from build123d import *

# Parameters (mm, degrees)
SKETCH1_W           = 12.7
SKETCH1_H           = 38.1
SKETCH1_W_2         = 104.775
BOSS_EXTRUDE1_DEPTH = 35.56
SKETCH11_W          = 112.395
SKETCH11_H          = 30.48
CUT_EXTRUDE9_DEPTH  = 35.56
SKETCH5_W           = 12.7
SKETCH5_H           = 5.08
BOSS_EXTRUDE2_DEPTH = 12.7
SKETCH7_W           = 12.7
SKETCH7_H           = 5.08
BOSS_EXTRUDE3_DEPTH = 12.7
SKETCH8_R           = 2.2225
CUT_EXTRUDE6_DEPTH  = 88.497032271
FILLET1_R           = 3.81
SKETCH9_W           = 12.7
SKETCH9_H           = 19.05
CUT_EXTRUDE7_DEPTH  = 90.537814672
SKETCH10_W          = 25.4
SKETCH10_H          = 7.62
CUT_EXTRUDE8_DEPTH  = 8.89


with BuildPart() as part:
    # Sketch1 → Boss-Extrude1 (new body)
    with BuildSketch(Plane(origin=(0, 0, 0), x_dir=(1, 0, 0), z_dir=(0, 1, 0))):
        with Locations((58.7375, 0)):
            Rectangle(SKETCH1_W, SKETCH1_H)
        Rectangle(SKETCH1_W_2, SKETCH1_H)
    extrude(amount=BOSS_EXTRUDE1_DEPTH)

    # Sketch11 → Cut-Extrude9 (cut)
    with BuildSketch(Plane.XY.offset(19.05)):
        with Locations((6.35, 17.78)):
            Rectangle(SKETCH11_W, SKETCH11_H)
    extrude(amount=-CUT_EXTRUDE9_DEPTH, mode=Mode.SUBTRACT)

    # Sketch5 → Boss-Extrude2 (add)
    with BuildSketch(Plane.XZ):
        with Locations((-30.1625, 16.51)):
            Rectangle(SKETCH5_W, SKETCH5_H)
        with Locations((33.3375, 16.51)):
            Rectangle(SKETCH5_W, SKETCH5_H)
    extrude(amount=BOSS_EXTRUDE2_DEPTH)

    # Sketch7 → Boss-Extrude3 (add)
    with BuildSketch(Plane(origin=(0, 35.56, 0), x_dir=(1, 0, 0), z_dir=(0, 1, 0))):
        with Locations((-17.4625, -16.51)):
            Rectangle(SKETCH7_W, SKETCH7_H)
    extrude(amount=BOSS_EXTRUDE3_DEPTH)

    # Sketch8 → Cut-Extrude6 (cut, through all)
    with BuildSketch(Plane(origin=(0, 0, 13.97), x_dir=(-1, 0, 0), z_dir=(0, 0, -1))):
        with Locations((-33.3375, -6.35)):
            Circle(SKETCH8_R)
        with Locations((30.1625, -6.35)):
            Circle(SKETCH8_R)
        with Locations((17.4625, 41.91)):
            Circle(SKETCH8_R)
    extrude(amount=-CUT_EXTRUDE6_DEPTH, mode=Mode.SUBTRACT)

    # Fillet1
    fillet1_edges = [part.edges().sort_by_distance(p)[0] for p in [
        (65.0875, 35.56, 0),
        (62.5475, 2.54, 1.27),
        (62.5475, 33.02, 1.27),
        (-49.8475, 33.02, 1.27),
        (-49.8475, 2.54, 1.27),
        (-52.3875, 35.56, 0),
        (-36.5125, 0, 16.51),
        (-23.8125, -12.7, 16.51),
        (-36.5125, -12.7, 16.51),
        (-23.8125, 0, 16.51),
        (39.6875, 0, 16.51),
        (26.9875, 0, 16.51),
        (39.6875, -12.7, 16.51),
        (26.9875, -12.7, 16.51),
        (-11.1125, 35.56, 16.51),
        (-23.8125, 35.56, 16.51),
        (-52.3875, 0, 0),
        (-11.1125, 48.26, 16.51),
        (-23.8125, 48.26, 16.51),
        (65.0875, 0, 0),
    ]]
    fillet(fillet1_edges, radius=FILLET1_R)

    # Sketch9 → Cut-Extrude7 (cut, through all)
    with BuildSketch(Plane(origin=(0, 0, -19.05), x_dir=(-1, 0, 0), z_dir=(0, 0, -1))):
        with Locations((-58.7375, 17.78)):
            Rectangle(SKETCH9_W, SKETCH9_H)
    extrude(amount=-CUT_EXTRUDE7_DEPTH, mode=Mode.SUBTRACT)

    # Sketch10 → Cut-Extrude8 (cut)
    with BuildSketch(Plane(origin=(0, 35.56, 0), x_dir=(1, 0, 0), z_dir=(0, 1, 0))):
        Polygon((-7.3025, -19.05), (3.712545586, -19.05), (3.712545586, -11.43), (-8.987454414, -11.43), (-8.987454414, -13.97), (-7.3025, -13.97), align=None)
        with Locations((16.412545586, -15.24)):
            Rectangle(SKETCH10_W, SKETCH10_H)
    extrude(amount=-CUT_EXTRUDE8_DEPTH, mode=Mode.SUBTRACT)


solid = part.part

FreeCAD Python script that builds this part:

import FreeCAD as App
import Part
import Sketcher
Q = App.Units.Quantity


def edges_at(feature, points):
    """Names of the edges that pass closest to the given points."""
    edges = feature.Shape.Edges
    near = lambda p: min(range(len(edges)), key=lambda i: edges[i].distToShape(Part.Vertex(*p))[0])
    return sorted({f"Edge{near(p) + 1}" for p in points})


def add_polygon(sketch, points):
    """Adds a closed chain of lines whose ends are joined by coincident constraints."""
    first, n = sketch.GeometryCount, len(points)
    for a, b in zip(points, points[1:] + points[:1]):
        sketch.addGeometry(Part.LineSegment(App.Vector(*a, 0), App.Vector(*b, 0)), False)
    for i in range(n):
        sketch.addConstraint(Sketcher.Constraint("Coincident", first + i, 2, first + (i + 1) % n, 1))

doc = App.newDocument("Part")
params = doc.addObject("Spreadsheet::Sheet", "Params")
for row, (alias, value) in enumerate([
    ("sketch1_height", "1.5 in"),
    ("sketch1_width", "4.625 in"),
    ("pad1_length", "1.4 in"),
    ("sketch2_height", "1.2 in"),
    ("sketch2_width", "4.425 in"),
    ("pocket1_length", "1.4 in"),
    ("sketch3_width", "0.5 in"),
    ("sketch3_height", "0.2 in"),
    ("pad2_length", "0.5 in"),
    ("sketch4_width", "0.5 in"),
    ("sketch4_height", "0.2 in"),
    ("pad3_length", "0.5 in"),
    ("sketch5_diameter", "0.175 in"),
    ("fillet_radius", "0.15 in"),
    ("sketch6_width", "0.5 in"),
    ("sketch6_height", "0.75 in"),
    ("sketch7_width", "1.5 in"),
    ("sketch7_height", "0.3 in"),
    ("sketch7_height2", "0.1 in"),
    ("pocket4_length", "0.35 in"),
], start=1):
    params.set(f"A{row}", alias)
    params.set(f"B{row}", "=" + value)
    params.setAlias(f"B{row}", alias)

body = doc.addObject("PartDesign::Body", "Body")

sketch1 = body.newObject("Sketcher::SketchObject", "Sketch")
sketch1.AttachmentSupport = (doc.getObject("XZ_Plane"), [""])
sketch1.MapMode = "FlatFace"
add_polygon(sketch1, [(65, 19), (65, -19), (-52, -19), (-52, 19)])
sketch1.addConstraint(Sketcher.Constraint("Vertical", 0))
sketch1.addConstraint(Sketcher.Constraint("Horizontal", 1))
sketch1.addConstraint(Sketcher.Constraint("Vertical", 2))
sketch1.addConstraint(Sketcher.Constraint("Horizontal", 3))
sketch1.addConstraint(Sketcher.Constraint("DistanceY", 0, 2, 0, 1, Q("1.5 in")))
sketch1.addConstraint(Sketcher.Constraint("DistanceX", 1, 2, 1, 1, Q("4.625 in")))
sketch1.addConstraint(Sketcher.Constraint("DistanceY", 0, 2, -1, 1, Q("0.75 in")))
sketch1.addConstraint(Sketcher.Constraint("DistanceX", -1, 1, 0, 2, Q("2.5625 in")))
sketch1.setExpression("Constraints[8]", "Params.sketch1_height")
sketch1.setExpression("Constraints[9]", "Params.sketch1_width")
pad1 = body.newObject("PartDesign::Pad", "Pad")
pad1.Profile = sketch1
pad1.setExpression("Length", "Params.pad1_length")
pad1.Reversed = True

sketch2 = body.newObject("Sketcher::SketchObject", "Sketch001")
sketch2.AttachmentSupport = (doc.getObject("XY_Plane"), [""])
sketch2.MapMode = "FlatFace"
sketch2.AttachmentOffset = App.Placement(App.Vector(0, 0, 0.75 * 25.4), App.Rotation())
add_polygon(sketch2, [(-50, 33), (-50, 3), (63, 3), (63, 33)])
sketch2.addConstraint(Sketcher.Constraint("Vertical", 0))
sketch2.addConstraint(Sketcher.Constraint("Horizontal", 1))
sketch2.addConstraint(Sketcher.Constraint("Vertical", 2))
sketch2.addConstraint(Sketcher.Constraint("Horizontal", 3))
sketch2.addConstraint(Sketcher.Constraint("DistanceY", 0, 2, 0, 1, Q("1.2 in")))
sketch2.addConstraint(Sketcher.Constraint("DistanceY", -1, 1, 0, 2, Q("0.1 in")))
sketch2.addConstraint(Sketcher.Constraint("DistanceX", 1, 1, 1, 2, Q("4.425 in")))
sketch2.addConstraint(Sketcher.Constraint("DistanceX", 0, 2, -1, 1, Q("1.9625 in")))
sketch2.setExpression("Constraints[8]", "Params.sketch2_height")
sketch2.setExpression("Constraints[10]", "Params.sketch2_width")
pocket1 = body.newObject("PartDesign::Pocket", "Pocket")
pocket1.Profile = sketch2
pocket1.setExpression("Length", "Params.pocket1_length")

sketch3 = body.newObject("Sketcher::SketchObject", "Sketch002")
sketch3.AttachmentSupport = (doc.getObject("XZ_Plane"), [""])
sketch3.MapMode = "FlatFace"
add_polygon(sketch3, [(-37, 19), (-37, 14), (-24, 14), (-24, 19)])
add_polygon(sketch3, [(27, 19), (27, 14), (40, 14), (40, 19)])
sketch3.addConstraint(Sketcher.Constraint("Vertical", 0))
sketch3.addConstraint(Sketcher.Constraint("Horizontal", 1))
sketch3.addConstraint(Sketcher.Constraint("Vertical", 2))
sketch3.addConstraint(Sketcher.Constraint("Horizontal", 3))
sketch3.addConstraint(Sketcher.Constraint("Vertical", 4))
sketch3.addConstraint(Sketcher.Constraint("Horizontal", 5))
sketch3.addConstraint(Sketcher.Constraint("Vertical", 6))
sketch3.addConstraint(Sketcher.Constraint("Horizontal", 7))
sketch3.addConstraint(Sketcher.Constraint("Horizontal", 1, 2, 4, 2))
sketch3.addConstraint(Sketcher.Constraint("Horizontal", 3, 2, 6, 2))
sketch3.addConstraint(Sketcher.Constraint("Equal", 3, 5))
sketch3.addConstraint(Sketcher.Constraint("DistanceX", 1, 1, 1, 2, Q("0.5 in")))
sketch3.addConstraint(Sketcher.Constraint("DistanceY", 0, 2, 0, 1, Q("0.2 in")))
sketch3.addConstraint(Sketcher.Constraint("DistanceX", 1, 2, 4, 2, Q("2 in")))
sketch3.addConstraint(Sketcher.Constraint("DistanceY", -1, 1, 0, 2, Q("0.55 in")))
sketch3.addConstraint(Sketcher.Constraint("DistanceX", 0, 2, -1, 1, Q("1.4375 in")))
sketch3.setExpression("Constraints[19]", "Params.sketch3_width")
sketch3.setExpression("Constraints[20]", "Params.sketch3_height")
pad2 = body.newObject("PartDesign::Pad", "Pad001")
pad2.Profile = sketch3
pad2.setExpression("Length", "Params.pad2_length")

sketch4 = body.newObject("Sketcher::SketchObject", "Sketch003")
sketch4.AttachmentSupport = (doc.getObject("XZ_Plane"), [""])
sketch4.MapMode = "FlatFace"
sketch4.AttachmentOffset = App.Placement(App.Vector(0, 0, -1.4 * 25.4), App.Rotation())
add_polygon(sketch4, [(-24, 14), (-24, 19), (-11, 19), (-11, 14)])
sketch4.addConstraint(Sketcher.Constraint("Vertical", 0))
sketch4.addConstraint(Sketcher.Constraint("Horizontal", 1))
sketch4.addConstraint(Sketcher.Constraint("Vertical", 2))
sketch4.addConstraint(Sketcher.Constraint("Horizontal", 3))
sketch4.addConstraint(Sketcher.Constraint("DistanceX", 1, 1, 1, 2, Q("0.5 in")))
sketch4.addConstraint(Sketcher.Constraint("DistanceY", 0, 1, 0, 2, Q("0.2 in")))
sketch4.addConstraint(Sketcher.Constraint("DistanceY", -1, 1, 0, 2, Q("0.75 in")))
sketch4.addConstraint(Sketcher.Constraint("DistanceX", 0, 2, -1, 1, Q("0.9375 in")))
sketch4.setExpression("Constraints[8]", "Params.sketch4_width")
sketch4.setExpression("Constraints[9]", "Params.sketch4_height")
pad3 = body.newObject("PartDesign::Pad", "Pad002")
pad3.Profile = sketch4
pad3.setExpression("Length", "Params.pad3_length")
pad3.Reversed = True

sketch5 = body.newObject("Sketcher::SketchObject", "Sketch004")
sketch5.AttachmentSupport = (doc.getObject("XY_Plane"), [""])
sketch5.MapMode = "FlatFace"
sketch5.AttachmentOffset = App.Placement(App.Vector(0, 0, 0.55 * 25.4), App.Rotation())
sketch5.addGeometry(Part.Circle(App.Vector(33.3, -6.3, 0), App.Vector(0, 0, 1), 2.2), False)
sketch5.addGeometry(Part.Circle(App.Vector(-30.2, -6.3, 0), App.Vector(0, 0, 1), 2.2), False)
sketch5.addGeometry(Part.Circle(App.Vector(-17.5, 41.9, 0), App.Vector(0, 0, 1), 2.2), False)
sketch5.addConstraint(Sketcher.Constraint("Equal", 0, 1))
sketch5.addConstraint(Sketcher.Constraint("Equal", 1, 2))
sketch5.addConstraint(Sketcher.Constraint("Horizontal", 0, 3, 1, 3))
sketch5.addConstraint(Sketcher.Constraint("Diameter", 0, Q("0.175 in")))
sketch5.addConstraint(Sketcher.Constraint("DistanceX", 2, 3, 0, 3, Q("2 in")))
sketch5.addConstraint(Sketcher.Constraint("DistanceX", 1, 3, 0, 3, Q("2.5 in")))
sketch5.addConstraint(Sketcher.Constraint("DistanceY", 1, 3, 2, 3, Q("1.9 in")))
sketch5.addConstraint(Sketcher.Constraint("DistanceY", 0, 3, -1, 1, Q("0.25 in")))
sketch5.addConstraint(Sketcher.Constraint("DistanceX", -1, 1, 0, 3, Q("1.3125 in")))
sketch5.setExpression("Constraints[3]", "Params.sketch5_diameter")
pocket2 = body.newObject("PartDesign::Pocket", "Pocket001")
pocket2.Profile = sketch5
pocket2.Type = "ThroughAll"
pocket2.Reversed = True
doc.recompute()

fillet = body.newObject("PartDesign::Fillet", "Fillet")
fillet.Base = (pocket2, edges_at(pocket2, [
    (65.088, 35.56, 0),
    (62.547, 2.54, 1.27),
    (62.547, 33.02, 1.27),
    (-49.847, 33.02, 1.27),
    (-49.847, 2.54, 1.27),
    (-52.388, 35.56, 0),
    (-36.513, 0, 16.51),
    (-23.812, -12.7, 16.51),
    (-36.513, -12.7, 16.51),
    (-23.812, 0, 16.51),
    (39.688, 0, 16.51),
    (26.988, 0, 16.51),
    (39.688, -12.7, 16.51),
    (26.988, -12.7, 16.51),
    (-11.113, 35.56, 16.51),
    (-23.812, 35.56, 16.51),
    (-52.388, 0, 0),
    (-11.113, 48.26, 16.51),
    (-23.812, 48.26, 16.51),
    (65.088, 0, 0),
]))
fillet.setExpression("Radius", "Params.fillet_radius")

sketch6 = body.newObject("Sketcher::SketchObject", "Sketch005")
sketch6.AttachmentSupport = (doc.getObject("XY_Plane"), [""])
sketch6.MapMode = "FlatFace"
sketch6.AttachmentOffset = App.Placement(App.Vector(0, 0, -0.75 * 25.4), App.Rotation())
add_polygon(sketch6, [(65, 27), (65, 8), (52, 8), (52, 27)])
sketch6.addConstraint(Sketcher.Constraint("Vertical", 0))
sketch6.addConstraint(Sketcher.Constraint("Horizontal", 1))
sketch6.addConstraint(Sketcher.Constraint("Vertical", 2))
sketch6.addConstraint(Sketcher.Constraint("Horizontal", 3))
sketch6.addConstraint(Sketcher.Constraint("DistanceX", 1, 2, 1, 1, Q("0.5 in")))
sketch6.addConstraint(Sketcher.Constraint("DistanceY", 0, 2, 0, 1, Q("0.75 in")))
sketch6.addConstraint(Sketcher.Constraint("DistanceX", -1, 1, 0, 2, Q("2.5625 in")))
sketch6.addConstraint(Sketcher.Constraint("DistanceY", -1, 1, 0, 2, Q("0.325 in")))
sketch6.setExpression("Constraints[8]", "Params.sketch6_width")
sketch6.setExpression("Constraints[9]", "Params.sketch6_height")
pocket3 = body.newObject("PartDesign::Pocket", "Pocket002")
pocket3.Profile = sketch6
pocket3.Type = "ThroughAll"
pocket3.Reversed = True

sketch7 = body.newObject("Sketcher::SketchObject", "Sketch006")
sketch7.AttachmentSupport = (doc.getObject("XZ_Plane"), [""])
sketch7.MapMode = "FlatFace"
sketch7.AttachmentOffset = App.Placement(App.Vector(0, 0, -1.4 * 25.4), App.Rotation())
add_polygon(sketch7, [(-7.3, 19.1), (29.1, 19.1), (29.1, 11.4), (-9, 11.4), (-9, 14), (-7.3, 14)])
sketch7.addConstraint(Sketcher.Constraint("Horizontal", 0))
sketch7.addConstraint(Sketcher.Constraint("Vertical", 1))
sketch7.addConstraint(Sketcher.Constraint("Horizontal", 2))
sketch7.addConstraint(Sketcher.Constraint("Vertical", 3))
sketch7.addConstraint(Sketcher.Constraint("Horizontal", 4))
sketch7.addConstraint(Sketcher.Constraint("Vertical", 5))
sketch7.addConstraint(Sketcher.Constraint("DistanceX", 2, 2, 2, 1, Q("1.5 in")))
sketch7.addConstraint(Sketcher.Constraint("DistanceY", 1, 2, 1, 1, Q("0.3 in")))
sketch7.addConstraint(Sketcher.Constraint("DistanceY", 3, 1, 3, 2, Q("0.1 in")))
sketch7.addConstraint(Sketcher.Constraint("DistanceY", -1, 1, 0, 2, Q("0.75 in")))
sketch7.addConstraint(Sketcher.Constraint("DistanceX", 4, 2, -1, 1, Q("0.2875 in")))
sketch7.addConstraint(Sketcher.Constraint("DistanceX", 0, 1, 0, 2, 36.415046))
sketch7.setExpression("Constraints[12]", "Params.sketch7_width")
sketch7.setExpression("Constraints[13]", "Params.sketch7_height")
sketch7.setExpression("Constraints[14]", "Params.sketch7_height2")
pocket4 = body.newObject("PartDesign::Pocket", "Pocket003")
pocket4.Profile = sketch7
pocket4.setExpression("Length", "Params.pocket4_length")
pocket4.Reversed = True

doc.recompute()
